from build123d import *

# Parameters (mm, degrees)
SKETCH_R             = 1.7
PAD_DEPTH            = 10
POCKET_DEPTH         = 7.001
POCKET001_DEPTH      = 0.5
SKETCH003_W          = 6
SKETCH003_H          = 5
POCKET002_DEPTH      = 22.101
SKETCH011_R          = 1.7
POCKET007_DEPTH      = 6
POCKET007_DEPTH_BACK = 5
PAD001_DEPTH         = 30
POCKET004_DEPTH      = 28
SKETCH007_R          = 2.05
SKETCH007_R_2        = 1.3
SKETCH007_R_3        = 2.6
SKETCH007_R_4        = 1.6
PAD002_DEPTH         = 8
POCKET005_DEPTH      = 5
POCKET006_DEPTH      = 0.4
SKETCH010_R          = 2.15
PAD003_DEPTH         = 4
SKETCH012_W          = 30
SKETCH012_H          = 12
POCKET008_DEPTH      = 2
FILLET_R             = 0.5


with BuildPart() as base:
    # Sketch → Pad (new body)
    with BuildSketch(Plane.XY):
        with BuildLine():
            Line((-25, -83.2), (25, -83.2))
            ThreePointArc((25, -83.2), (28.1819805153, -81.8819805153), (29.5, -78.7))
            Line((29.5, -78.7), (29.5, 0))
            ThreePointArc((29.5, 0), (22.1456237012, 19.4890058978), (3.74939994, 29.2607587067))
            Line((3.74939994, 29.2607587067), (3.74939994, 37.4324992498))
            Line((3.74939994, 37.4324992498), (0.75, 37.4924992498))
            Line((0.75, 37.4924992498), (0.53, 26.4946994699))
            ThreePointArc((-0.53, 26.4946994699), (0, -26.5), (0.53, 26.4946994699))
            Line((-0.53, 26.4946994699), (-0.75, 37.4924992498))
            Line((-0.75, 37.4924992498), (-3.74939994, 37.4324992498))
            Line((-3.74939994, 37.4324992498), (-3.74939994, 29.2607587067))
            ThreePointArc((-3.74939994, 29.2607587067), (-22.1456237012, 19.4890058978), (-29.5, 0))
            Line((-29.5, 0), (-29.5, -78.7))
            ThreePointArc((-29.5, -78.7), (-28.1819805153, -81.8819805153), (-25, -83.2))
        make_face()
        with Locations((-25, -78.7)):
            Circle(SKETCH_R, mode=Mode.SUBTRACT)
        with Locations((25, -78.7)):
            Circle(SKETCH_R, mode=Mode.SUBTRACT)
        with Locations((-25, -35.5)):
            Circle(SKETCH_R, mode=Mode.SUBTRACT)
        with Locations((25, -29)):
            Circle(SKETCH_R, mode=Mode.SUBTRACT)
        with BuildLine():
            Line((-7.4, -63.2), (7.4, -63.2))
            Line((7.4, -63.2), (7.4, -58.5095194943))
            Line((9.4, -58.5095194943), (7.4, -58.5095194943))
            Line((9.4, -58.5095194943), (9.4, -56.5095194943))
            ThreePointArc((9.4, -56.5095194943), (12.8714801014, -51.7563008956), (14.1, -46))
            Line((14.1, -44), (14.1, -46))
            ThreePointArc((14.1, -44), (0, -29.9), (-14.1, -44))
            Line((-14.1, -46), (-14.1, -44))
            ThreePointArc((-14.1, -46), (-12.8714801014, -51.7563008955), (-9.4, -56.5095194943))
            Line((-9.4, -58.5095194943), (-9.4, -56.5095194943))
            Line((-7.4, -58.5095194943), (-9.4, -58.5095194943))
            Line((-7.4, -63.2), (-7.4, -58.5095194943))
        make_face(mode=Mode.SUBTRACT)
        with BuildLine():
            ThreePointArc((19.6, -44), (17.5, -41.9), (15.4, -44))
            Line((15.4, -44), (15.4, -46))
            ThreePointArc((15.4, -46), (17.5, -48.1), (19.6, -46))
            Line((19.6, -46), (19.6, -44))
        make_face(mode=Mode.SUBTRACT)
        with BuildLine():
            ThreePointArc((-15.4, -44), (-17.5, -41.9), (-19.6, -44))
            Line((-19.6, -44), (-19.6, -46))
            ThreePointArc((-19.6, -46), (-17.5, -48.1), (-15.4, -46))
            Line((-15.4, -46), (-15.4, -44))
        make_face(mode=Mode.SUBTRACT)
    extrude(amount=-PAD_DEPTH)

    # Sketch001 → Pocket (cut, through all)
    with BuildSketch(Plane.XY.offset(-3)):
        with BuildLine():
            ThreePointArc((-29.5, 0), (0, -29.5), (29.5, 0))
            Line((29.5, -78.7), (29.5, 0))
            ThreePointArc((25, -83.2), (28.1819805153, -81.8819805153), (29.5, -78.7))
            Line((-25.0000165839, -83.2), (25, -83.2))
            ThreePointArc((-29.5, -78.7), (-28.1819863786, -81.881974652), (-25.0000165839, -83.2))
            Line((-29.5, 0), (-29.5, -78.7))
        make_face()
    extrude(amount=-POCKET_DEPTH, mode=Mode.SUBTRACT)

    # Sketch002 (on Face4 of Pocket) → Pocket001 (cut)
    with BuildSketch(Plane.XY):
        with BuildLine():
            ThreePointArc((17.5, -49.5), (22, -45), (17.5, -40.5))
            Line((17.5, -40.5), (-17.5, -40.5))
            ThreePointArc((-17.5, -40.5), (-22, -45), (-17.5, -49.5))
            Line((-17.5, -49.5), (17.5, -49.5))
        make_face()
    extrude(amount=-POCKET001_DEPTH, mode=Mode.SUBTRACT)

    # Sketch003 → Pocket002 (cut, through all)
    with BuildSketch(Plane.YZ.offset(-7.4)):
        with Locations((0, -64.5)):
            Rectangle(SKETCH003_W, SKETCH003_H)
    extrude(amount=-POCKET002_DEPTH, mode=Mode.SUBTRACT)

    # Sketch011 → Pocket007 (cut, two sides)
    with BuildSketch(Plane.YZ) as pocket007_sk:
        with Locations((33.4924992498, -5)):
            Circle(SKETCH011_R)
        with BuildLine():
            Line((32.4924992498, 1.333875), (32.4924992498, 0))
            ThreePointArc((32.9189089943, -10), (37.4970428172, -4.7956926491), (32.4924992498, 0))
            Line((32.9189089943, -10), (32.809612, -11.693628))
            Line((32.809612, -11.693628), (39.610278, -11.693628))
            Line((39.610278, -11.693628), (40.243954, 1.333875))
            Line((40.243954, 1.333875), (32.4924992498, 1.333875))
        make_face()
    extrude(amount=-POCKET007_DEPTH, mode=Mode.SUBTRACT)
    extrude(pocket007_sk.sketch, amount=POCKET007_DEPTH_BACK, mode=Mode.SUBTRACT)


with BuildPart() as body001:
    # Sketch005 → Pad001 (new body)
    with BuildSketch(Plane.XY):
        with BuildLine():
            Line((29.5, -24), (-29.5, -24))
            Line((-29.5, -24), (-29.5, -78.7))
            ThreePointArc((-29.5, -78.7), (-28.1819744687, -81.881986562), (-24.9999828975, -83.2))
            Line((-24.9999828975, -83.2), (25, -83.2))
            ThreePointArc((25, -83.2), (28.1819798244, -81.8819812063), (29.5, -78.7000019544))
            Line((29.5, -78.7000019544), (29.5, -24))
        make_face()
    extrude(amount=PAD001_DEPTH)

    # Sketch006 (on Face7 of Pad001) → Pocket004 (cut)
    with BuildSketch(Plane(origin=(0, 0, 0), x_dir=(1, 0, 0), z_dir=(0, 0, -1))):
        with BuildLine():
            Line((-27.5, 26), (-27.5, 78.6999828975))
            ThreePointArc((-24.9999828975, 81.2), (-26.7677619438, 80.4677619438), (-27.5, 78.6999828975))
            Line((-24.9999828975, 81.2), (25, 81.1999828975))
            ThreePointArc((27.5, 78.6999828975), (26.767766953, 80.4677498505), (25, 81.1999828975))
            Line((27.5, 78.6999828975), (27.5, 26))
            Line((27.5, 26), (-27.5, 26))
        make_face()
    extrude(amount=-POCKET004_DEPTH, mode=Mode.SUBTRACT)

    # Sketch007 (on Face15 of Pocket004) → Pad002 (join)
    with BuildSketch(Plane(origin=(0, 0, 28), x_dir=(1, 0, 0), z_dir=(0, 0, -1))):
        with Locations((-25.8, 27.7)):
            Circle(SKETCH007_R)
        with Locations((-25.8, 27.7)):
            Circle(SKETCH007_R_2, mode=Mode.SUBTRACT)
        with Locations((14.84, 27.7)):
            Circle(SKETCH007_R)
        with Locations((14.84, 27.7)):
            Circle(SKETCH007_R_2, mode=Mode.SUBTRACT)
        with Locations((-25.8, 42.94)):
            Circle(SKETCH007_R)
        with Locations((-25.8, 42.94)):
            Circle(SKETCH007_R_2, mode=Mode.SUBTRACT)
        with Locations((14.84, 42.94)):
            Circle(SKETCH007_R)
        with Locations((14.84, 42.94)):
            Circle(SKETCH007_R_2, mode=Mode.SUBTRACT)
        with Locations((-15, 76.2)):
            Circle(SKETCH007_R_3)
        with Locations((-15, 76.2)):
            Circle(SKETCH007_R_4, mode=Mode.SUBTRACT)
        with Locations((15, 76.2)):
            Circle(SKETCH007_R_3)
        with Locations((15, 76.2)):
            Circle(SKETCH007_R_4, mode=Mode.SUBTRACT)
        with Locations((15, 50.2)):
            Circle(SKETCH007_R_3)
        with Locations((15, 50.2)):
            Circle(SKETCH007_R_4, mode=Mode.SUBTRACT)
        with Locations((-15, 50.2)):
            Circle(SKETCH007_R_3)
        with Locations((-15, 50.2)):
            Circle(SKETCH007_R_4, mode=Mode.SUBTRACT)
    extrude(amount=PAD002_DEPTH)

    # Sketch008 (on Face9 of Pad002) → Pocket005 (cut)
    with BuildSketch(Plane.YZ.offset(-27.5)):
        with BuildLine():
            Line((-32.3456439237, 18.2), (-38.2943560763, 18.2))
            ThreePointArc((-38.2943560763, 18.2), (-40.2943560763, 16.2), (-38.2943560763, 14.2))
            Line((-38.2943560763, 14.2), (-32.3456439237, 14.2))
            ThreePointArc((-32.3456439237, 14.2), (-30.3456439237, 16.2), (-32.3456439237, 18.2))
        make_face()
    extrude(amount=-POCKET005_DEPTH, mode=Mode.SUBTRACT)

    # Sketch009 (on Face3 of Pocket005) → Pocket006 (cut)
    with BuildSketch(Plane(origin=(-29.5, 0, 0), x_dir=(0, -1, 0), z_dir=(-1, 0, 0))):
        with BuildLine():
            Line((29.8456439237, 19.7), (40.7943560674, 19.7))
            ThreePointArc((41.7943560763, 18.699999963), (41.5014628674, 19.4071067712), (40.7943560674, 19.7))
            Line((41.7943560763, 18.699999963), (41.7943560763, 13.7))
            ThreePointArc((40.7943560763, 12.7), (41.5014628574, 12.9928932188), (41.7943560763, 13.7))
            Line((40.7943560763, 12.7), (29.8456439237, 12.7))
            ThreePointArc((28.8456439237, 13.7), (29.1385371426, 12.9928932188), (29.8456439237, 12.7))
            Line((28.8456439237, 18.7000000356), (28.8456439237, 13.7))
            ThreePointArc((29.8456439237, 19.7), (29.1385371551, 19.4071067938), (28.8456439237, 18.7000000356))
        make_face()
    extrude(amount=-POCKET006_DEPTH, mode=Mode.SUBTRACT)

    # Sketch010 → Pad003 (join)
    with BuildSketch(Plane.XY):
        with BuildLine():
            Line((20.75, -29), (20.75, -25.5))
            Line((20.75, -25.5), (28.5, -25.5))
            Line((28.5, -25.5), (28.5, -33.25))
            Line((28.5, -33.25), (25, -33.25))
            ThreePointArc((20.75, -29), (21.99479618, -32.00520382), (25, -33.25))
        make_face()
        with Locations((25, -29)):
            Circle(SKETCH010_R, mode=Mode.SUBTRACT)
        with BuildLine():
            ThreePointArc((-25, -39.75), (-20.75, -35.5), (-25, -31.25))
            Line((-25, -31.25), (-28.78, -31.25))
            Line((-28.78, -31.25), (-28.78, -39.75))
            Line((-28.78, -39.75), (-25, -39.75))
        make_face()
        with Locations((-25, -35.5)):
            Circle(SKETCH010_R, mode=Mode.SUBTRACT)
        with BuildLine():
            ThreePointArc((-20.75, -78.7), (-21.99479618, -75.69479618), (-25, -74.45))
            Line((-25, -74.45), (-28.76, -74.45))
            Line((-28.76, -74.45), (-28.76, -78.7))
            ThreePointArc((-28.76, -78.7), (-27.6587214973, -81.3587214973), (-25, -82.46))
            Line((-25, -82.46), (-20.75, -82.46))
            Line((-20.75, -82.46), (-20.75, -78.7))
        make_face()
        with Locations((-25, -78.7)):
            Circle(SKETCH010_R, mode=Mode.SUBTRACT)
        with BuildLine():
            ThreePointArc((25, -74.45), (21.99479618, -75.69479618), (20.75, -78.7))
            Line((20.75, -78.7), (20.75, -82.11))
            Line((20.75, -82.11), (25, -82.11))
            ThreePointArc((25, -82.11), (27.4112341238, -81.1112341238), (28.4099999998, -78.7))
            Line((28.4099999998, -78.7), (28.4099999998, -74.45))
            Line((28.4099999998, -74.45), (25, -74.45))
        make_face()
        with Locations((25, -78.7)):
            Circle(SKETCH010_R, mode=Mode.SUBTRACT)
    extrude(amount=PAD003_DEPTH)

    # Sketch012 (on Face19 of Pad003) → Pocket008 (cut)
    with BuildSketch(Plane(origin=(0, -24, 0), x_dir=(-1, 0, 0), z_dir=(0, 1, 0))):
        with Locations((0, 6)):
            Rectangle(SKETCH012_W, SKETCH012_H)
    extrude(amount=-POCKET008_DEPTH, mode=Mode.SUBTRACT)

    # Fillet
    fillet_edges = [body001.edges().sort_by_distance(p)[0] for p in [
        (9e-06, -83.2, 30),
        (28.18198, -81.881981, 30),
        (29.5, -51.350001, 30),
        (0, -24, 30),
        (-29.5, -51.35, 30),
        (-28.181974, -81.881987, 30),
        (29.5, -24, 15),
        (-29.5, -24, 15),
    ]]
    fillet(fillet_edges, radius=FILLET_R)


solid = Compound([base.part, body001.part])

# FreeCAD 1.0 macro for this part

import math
import FreeCAD as App
import Part
import Sketcher

V = App.Vector
Q = App.Units.Quantity


def edges_at(feature, points):
    """Names of the edges that pass closest to the given points."""
    edges = feature.Shape.Edges
    near = lambda p: min(range(len(edges)), key=lambda i: edges[i].distToShape(Part.Vertex(*p))[0])
    return sorted({f"Edge{near(p) + 1}" for p in points})


def add_polygon(sketch, points):
    """Adds a closed chain of lines whose ends are joined by coincident constraints."""
    first, n = sketch.GeometryCount, len(points)
    for a, b in zip(points, points[1:] + points[:1]):
        sketch.addGeometry(Part.LineSegment(App.Vector(*a, 0), App.Vector(*b, 0)), False)
    for i in range(n):
        sketch.addConstraint(Sketcher.Constraint("Coincident", first + i, 2, first + (i + 1) % n, 1))

doc = App.newDocument("Part")
body = doc.addObject("PartDesign::Body", "Body")

sketch1 = body.newObject("Sketcher::SketchObject", "Sketch")
sketch1.AttachmentSupport = (doc.getObject("XY_Plane"), [""])
sketch1.MapMode = "FlatFace"
sketch1.addGeometry(Part.LineSegment(V(-25, -83.2, 0), V(25, -83.2, 0)), False)
sketch1.addGeometry(Part.ArcOfCircle(Part.Circle(V(25, -78.7, 0), V(0, 0, 1), 4.5), math.radians(-90), math.radians(0)), False)
sketch1.addGeometry(Part.LineSegment(V(29.5, -78.7, 0), V(29.5, 0, 0)), False)
sketch1.addGeometry(Part.ArcOfCircle(Part.Circle(V(0, 0, 0), V(0, 0, 1), 29.5), math.radians(0), math.radians(83)), False)
sketch1.addGeometry(Part.LineSegment(V(3.7, 29.3, 0), V(3.7, 37.4, 0)), False)
sketch1.addGeometry(Part.LineSegment(V(3.7, 37.4, 0), V(0.8, 37.5, 0)), False)
sketch1.addGeometry(Part.LineSegment(V(0.8, 37.5, 0), V(0.5, 26.5, 0)), False)
sketch1.addGeometry(Part.ArcOfCircle(Part.Circle(V(0, 0, 0), V(0, 0, 1), 26.5), math.radians(91), math.radians(449)), False)
sketch1.addGeometry(Part.LineSegment(V(-0.5, 26.5, 0), V(-0.8, 37.5, 0)), False)
sketch1.addGeometry(Part.LineSegment(V(-0.8, 37.5, 0), V(-3.7, 37.4, 0)), False)
sketch1.addGeometry(Part.LineSegment(V(-3.7, 37.4, 0), V(-3.7, 29.3, 0)), False)
sketch1.addGeometry(Part.ArcOfCircle(Part.Circle(V(0, 0, 0), V(0, 0, 1), 29.5), math.radians(97), math.radians(180)), False)
sketch1.addGeometry(Part.LineSegment(V(-29.5, 0, 0), V(-29.5, -78.7, 0)), False)
sketch1.addGeometry(Part.ArcOfCircle(Part.Circle(V(-25, -78.7, 0), V(0, 0, 1), 4.5), math.radians(180), math.radians(270)), False)
sketch1.addGeometry(Part.Circle(V(-25, -78.7, 0), V(0, 0, 1), 1.7), False)
sketch1.addGeometry(Part.Circle(V(25, -78.7, 0), V(0, 0, 1), 1.7), False)
sketch1.addGeometry(Part.ArcOfCircle(Part.Circle(V(-17.5, -44, 0), V(0, 0, 1), 2.1), math.radians(0), math.radians(180)), False)
sketch1.addGeometry(Part.LineSegment(V(-15.4, -44, 0), V(-15.4, -46, 0)), False)
sketch1.addGeometry(Part.ArcOfCircle(Part.Circle(V(-17.5, -46, 0), V(0, 0, 1), 2.1), math.radians(180), math.radians(360)), False)
sketch1.addGeometry(Part.LineSegment(V(-19.6, -46, 0), V(-19.6, -44, 0)), False)
sketch1.addGeometry(Part.Circle(V(-25, -35.5, 0), V(0, 0, 1), 1.7), False)
sketch1.addGeometry(Part.LineSegment(V(7.4, -63.2, 0), V(-7.4, -63.2, 0)), False)
sketch1.addGeometry(Part.LineSegment(V(-7.4, -63.2, 0), V(-7.4, -58.5, 0)), False)
sketch1.addGeometry(Part.LineSegment(V(-7.4, -58.5, 0), V(-9.4, -58.5, 0)), False)
sketch1.addGeometry(Part.LineSegment(V(-9.4, -58.5, 0), V(-9.4, -56.5, 0)), False)
sketch1.addGeometry(Part.ArcOfCircle(Part.Circle(V(0, -46, 0), V(0, 0, 1), 14.1), math.radians(180), math.radians(228)), False)
sketch1.addGeometry(Part.LineSegment(V(-14.1, -46, 0), V(-14.1, -44, 0)), False)
sketch1.addGeometry(Part.ArcOfCircle(Part.Circle(V(0, -44, 0), V(0, 0, 1), 14.1), math.radians(0), math.radians(180)), False)
sketch1.addGeometry(Part.LineSegment(V(14.1, -44, 0), V(14.1, -46, 0)), False)
sketch1.addGeometry(Part.ArcOfCircle(Part.Circle(V(0, -46, 0), V(0, 0, 1), 14.1), math.radians(-48), math.radians(0)), False)
sketch1.addGeometry(Part.LineSegment(V(9.4, -56.5, 0), V(9.4, -58.5, 0)), False)
sketch1.addGeometry(Part.LineSegment(V(9.4, -58.5, 0), V(7.4, -58.5, 0)), False)
sketch1.addGeometry(Part.LineSegment(V(7.4, -58.5, 0), V(7.4, -63.2, 0)), False)
sketch1.addGeometry(Part.ArcOfCircle(Part.Circle(V(17.5, -44, 0), V(0, 0, 1), 2.1), math.radians(0), math.radians(180)), False)
sketch1.addGeometry(Part.LineSegment(V(19.6, -44, 0), V(19.6, -46, 0)), False)
sketch1.addGeometry(Part.ArcOfCircle(Part.Circle(V(17.5, -46, 0), V(0, 0, 1), 2.1), math.radians(180), math.radians(360)), False)
sketch1.addGeometry(Part.LineSegment(V(15.4, -46, 0), V(15.4, -44, 0)), False)
sketch1.addGeometry(Part.Circle(V(25, -29, 0), V(0, 0, 1), 1.7), False)
sketch1.addConstraint(Sketcher.Constraint("Tangent", 0, 2, 1, 1))
sketch1.addConstraint(Sketcher.Constraint("Tangent", 1, 2, 2, 1))
sketch1.addConstraint(Sketcher.Constraint("Tangent", 2, 2, 3, 1))
sketch1.addConstraint(Sketcher.Constraint("Coincident", 3, 2, 4, 1))
sketch1.addConstraint(Sketcher.Constraint("Coincident", 4, 2, 5, 1))
sketch1.addConstraint(Sketcher.Constraint("Coincident", 5, 2, 6, 1))
sketch1.addConstraint(Sketcher.Constraint("Coincident", 6, 2, 7, 2))
sketch1.addConstraint(Sketcher.Constraint("Coincident", 7, 1, 8, 1))
sketch1.addConstraint(Sketcher.Constraint("Coincident", 8, 2, 9, 1))
sketch1.addConstraint(Sketcher.Constraint("Coincident", 9, 2, 10, 1))
sketch1.addConstraint(Sketcher.Constraint("Coincident", 10, 2, 11, 1))
sketch1.addConstraint(Sketcher.Constraint("Tangent", 11, 2, 12, 1))
sketch1.addConstraint(Sketcher.Constraint("Tangent", 12, 2, 13, 1))
sketch1.addConstraint(Sketcher.Constraint("Tangent", 13, 2, 0, 1))
sketch1.addConstraint(Sketcher.Constraint("Tangent", 16, 1, 17, 1))
sketch1.addConstraint(Sketcher.Constraint("Tangent", 17, 2, 18, 2))
sketch1.addConstraint(Sketcher.Constraint("Tangent", 18, 1, 19, 1))
sketch1.addConstraint(Sketcher.Constraint("Tangent", 19, 2, 16, 2))
sketch1.addConstraint(Sketcher.Constraint("Coincident", 21, 2, 22, 1))
sketch1.addConstraint(Sketcher.Constraint("Coincident", 22, 2, 23, 1))
sketch1.addConstraint(Sketcher.Constraint("Coincident", 23, 2, 24, 1))
sketch1.addConstraint(Sketcher.Constraint("Coincident", 24, 2, 25, 2))
sketch1.addConstraint(Sketcher.Constraint("Tangent", 25, 1, 26, 1))
sketch1.addConstraint(Sketcher.Constraint("Tangent", 26, 2, 27, 2))
sketch1.addConstraint(Sketcher.Constraint("Tangent", 27, 1, 28, 1))
sketch1.addConstraint(Sketcher.Constraint("Tangent", 28, 2, 29, 2))
sketch1.addConstraint(Sketcher.Constraint("Coincident", 29, 1, 30, 1))
sketch1.addConstraint(Sketcher.Constraint("Coincident", 30, 2, 31, 1))
sketch1.addConstraint(Sketcher.Constraint("Coincident", 31, 2, 32, 1))
sketch1.addConstraint(Sketcher.Constraint("Coincident", 32, 2, 21, 1))
sketch1.addConstraint(Sketcher.Constraint("Tangent", 33, 1, 34, 1))
sketch1.addConstraint(Sketcher.Constraint("Tangent", 34, 2, 35, 2))
sketch1.addConstraint(Sketcher.Constraint("Tangent", 35, 1, 36, 1))
sketch1.addConstraint(Sketcher.Constraint("Tangent", 36, 2, 33, 2))
sketch1.addConstraint(Sketcher.Constraint("Horizontal", 0))
sketch1.addConstraint(Sketcher.Constraint("Vertical", 2))
sketch1.addConstraint(Sketcher.Constraint("Vertical", 4))
sketch1.addConstraint(Sketcher.Constraint("Vertical", 10))
sketch1.addConstraint(Sketcher.Constraint("Vertical", 12))
sketch1.addConstraint(Sketcher.Constraint("Vertical", 17))
sketch1.addConstraint(Sketcher.Constraint("Vertical", 19))
sketch1.addConstraint(Sketcher.Constraint("Horizontal", 21))
sketch1.addConstraint(Sketcher.Constraint("Vertical", 22))
sketch1.addConstraint(Sketcher.Constraint("Horizontal", 23))
sketch1.addConstraint(Sketcher.Constraint("Vertical", 24))
sketch1.addConstraint(Sketcher.Constraint("Vertical", 26))
sketch1.addConstraint(Sketcher.Constraint("Vertical", 28))
sketch1.addConstraint(Sketcher.Constraint("Vertical", 30))
sketch1.addConstraint(Sketcher.Constraint("Horizontal", 31))
sketch1.addConstraint(Sketcher.Constraint("Vertical", 32))
sketch1.addConstraint(Sketcher.Constraint("Vertical", 34))
sketch1.addConstraint(Sketcher.Constraint("Vertical", 36))
sketch1.addConstraint(Sketcher.Constraint("Coincident", 3, 3, -1, 1))
sketch1.addConstraint(Sketcher.Constraint("Coincident", 7, 3, -1, 1))
sketch1.addConstraint(Sketcher.Constraint("Coincident", 11, 3, -1, 1))
sketch1.addConstraint(Sketcher.Constraint("Coincident", 14, 3, 13, 3))
sketch1.addConstraint(Sketcher.Constraint("Coincident", 15, 3, 1, 3))
sketch1.addConstraint(Sketcher.Constraint("Coincident", 29, 3, 25, 3))
sketch1.addConstraint(Sketcher.Constraint("Equal", 3, 11))
sketch1.addConstraint(Sketcher.Constraint("Equal", 1, 13))
sketch1.addConstraint(Sketcher.Constraint("Equal", 14, 15))
sketch1.addConstraint(Sketcher.Constraint("Equal", 15, 20))
sketch1.addConstraint(Sketcher.Constraint("Equal", 25, 27))
sketch1.addConstraint(Sketcher.Constraint("Equal", 18, 33))
sketch1.addConstraint(Sketcher.Constraint("Equal", 20, 37))
sketch1.addConstraint(Sketcher.Constraint("Symmetric", 16, 3, 33, 3, -2))
sketch1.addConstraint(Sketcher.Constraint("Symmetric", 5, 2, 8, 2, -2))
sketch1.addConstraint(Sketcher.Constraint("Symmetric", 4, 2, 9, 2, -2))
sketch1.addConstraint(Sketcher.Constraint("Symmetric", 24, 2, 29, 1, -2))
sketch1.addConstraint(Sketcher.Constraint("Symmetric", 22, 2, 31, 2, -2))
sketch1.addConstraint(Sketcher.Constraint("Perpendicular", 5, 6))
sketch1.addConstraint(Sketcher.Constraint("Perpendicular", 8, 9))
sketch1.addConstraint(Sketcher.Constraint("Horizontal", 18, 3, 25, 3))
sketch1.addConstraint(Sketcher.Constraint("Horizontal", 16, 3, 27, 3))
sketch1.addConstraint(Sketcher.Constraint("Horizontal", 29, 3, 35, 3))
sketch1.addConstraint(Sketcher.Constraint("Vertical", 14, 3, 20, 3))
sketch1.addConstraint(Sketcher.Constraint("Vertical", 15, 3, 37, 3))
sketch1.addConstraint(Sketcher.Constraint("Equal", 31, 17))
sketch1.addConstraint(Sketcher.Constraint("Equal", 19, 24))
sketch1.addConstraint(Sketcher.Constraint("Diameter", 14, Q("3.4 mm")))
sketch1.addConstraint(Sketcher.Constraint("Radius", 1, Q("4.5 mm")))
sketch1.addConstraint(Sketcher.Constraint("Radius", 3, Q("29.5 mm")))
sketch1.addConstraint(Sketcher.Constraint("Radius", 7, Q("26.5 mm")))
sketch1.addConstraint(Sketcher.Constraint("Radius", 16, Q("2.1 mm")))
sketch1.addConstraint(Sketcher.Constraint("Radius", 25, Q("14.1 mm")))
sketch1.addConstraint(Sketcher.Constraint("DistanceX", 23, 2, 23, 1, Q("2 mm")))
sketch1.addConstraint(Sketcher.Constraint("Distance", 5, Q("3 mm")))
sketch1.addConstraint(Sketcher.Constraint("Distance", 6, Q("11 mm")))
sketch1.addConstraint(Sketcher.Constraint("DistanceX", 21, 2, 21, 1, Q("14.8 mm")))
sketch1.addConstraint(Sketcher.Constraint("DistanceY", 2, 1, 2, 2, Q("78.7 mm")))
sketch1.addConstraint(Sketcher.Constraint("DistanceY", 16, 3, -1, 1, Q("44 mm")))
sketch1.addConstraint(Sketcher.Constraint("DistanceY", 37, 3, -1, 1, Q("29 mm")))
sketch1.addConstraint(Sketcher.Constraint("DistanceX", 16, 3, 33, 3, Q("35 mm")))
sketch1.addConstraint(Sketcher.Constraint("DistanceY", 20, 3, -1, 1, Q("35.5 mm")))
sketch1.addConstraint(Sketcher.Constraint("DistanceY", 21, 2, -1, 1, Q("63.2 mm")))
sketch1.addConstraint(Sketcher.Constraint("DistanceX", 8, 2, 5, 2, Q("1.5 mm")))
sketch1.addConstraint(Sketcher.Constraint("DistanceX", -1, 1, 6, 2, Q("0.53 mm")))
pad1 = body.newObject("PartDesign::Pad", "Pad")
pad1.Profile = sketch1
pad1.Length = 10
pad1.Reversed = True

sketch2 = body.newObject("Sketcher::SketchObject", "Sketch001")
sketch2.AttachmentSupport = (doc.getObject("XY_Plane"), [""])
sketch2.MapMode = "FlatFace"
sketch2.AttachmentOffset = App.Placement(V(0, 0, -3), App.Rotation())
sketch2.addGeometry(Part.ArcOfCircle(Part.Circle(V(0, 0, 0), V(0, 0, 1), 29.5), math.radians(180), math.radians(360)), False)
sketch2.addGeometry(Part.LineSegment(V(-29.5, 0, 0), V(-29.5, -78.7, 0)), False)
sketch2.addGeometry(Part.ArcOfCircle(Part.Circle(V(-25, -78.7, 0), V(0, 0, 1), 4.5), math.radians(180), math.radians(270)), False)
sketch2.addGeometry(Part.LineSegment(V(-25, -83.2, 0), V(25, -83.2, 0)), False)
sketch2.addGeometry(Part.ArcOfCircle(Part.Circle(V(25, -78.7, 0), V(0, 0, 1), 4.5), math.radians(-90), math.radians(0)), False)
sketch2.addGeometry(Part.LineSegment(V(29.5, -78.7, 0), V(29.5, 0, 0)), False)
sketch2.addConstraint(Sketcher.Constraint("Tangent", 0, 1, 1, 1))
sketch2.addConstraint(Sketcher.Constraint("Tangent", 1, 2, 2, 1))
sketch2.addConstraint(Sketcher.Constraint("Coincident", 2, 2, 3, 1))
sketch2.addConstraint(Sketcher.Constraint("Tangent", 3, 2, 4, 1))
sketch2.addConstraint(Sketcher.Constraint("Tangent", 4, 2, 5, 1))
sketch2.addConstraint(Sketcher.Constraint("Tangent", 5, 2, 0, 2))
sketch2.addConstraint(Sketcher.Constraint("Vertical", 1))
sketch2.addConstraint(Sketcher.Constraint("Horizontal", 3))
sketch2.addConstraint(Sketcher.Constraint("Vertical", 5))
sketch2.addConstraint(Sketcher.Constraint("Coincident", 0, 3, -1, 1))
sketch2.addConstraint(Sketcher.Constraint("Equal", 2, 4))
sketch2.addConstraint(Sketcher.Constraint("Radius", 0, Q("29.5 mm")))
sketch2.addConstraint(Sketcher.Constraint("Radius", 2, Q("4.5 mm")))
sketch2.addConstraint(Sketcher.Constraint("DistanceY", 1, 2, 1, 1, Q("78.7 mm")))
sketch2.addConstraint(Sketcher.Constraint("DistanceX", 3, 1, 3, 2, Q("50.000017 mm")))
pocket1 = body.newObject("PartDesign::Pocket", "Pocket")
pocket1.Profile = sketch2
pocket1.Type = "ThroughAll"

sketch3 = body.newObject("Sketcher::SketchObject", "Sketch002")
sketch3.AttachmentSupport = (doc.getObject("XY_Plane"), [""])
sketch3.MapMode = "FlatFace"
sketch3.addGeometry(Part.ArcOfCircle(Part.Circle(V(17.5, -45, 0), V(0, 0, 1), 4.5), math.radians(-90), math.radians(90)), False)
sketch3.addGeometry(Part.LineSegment(V(17.5, -40.5, 0), V(-17.5, -40.5, 0)), False)
sketch3.addGeometry(Part.ArcOfCircle(Part.Circle(V(-17.5, -45, 0), V(0, 0, 1), 4.5), math.radians(90), math.radians(270)), False)
sketch3.addGeometry(Part.LineSegment(V(-17.5, -49.5, 0), V(17.5, -49.5, 0)), False)
sketch3.addConstraint(Sketcher.Constraint("Tangent", 0, 2, 1, 1))
sketch3.addConstraint(Sketcher.Constraint("Tangent", 1, 2, 2, 1))
sketch3.addConstraint(Sketcher.Constraint("Tangent", 2, 2, 3, 1))
sketch3.addConstraint(Sketcher.Constraint("Tangent", 3, 2, 0, 1))
sketch3.addConstraint(Sketcher.Constraint("Horizontal", 1))
sketch3.addConstraint(Sketcher.Constraint("Horizontal", 3))
sketch3.addConstraint(Sketcher.Constraint("Radius", 0, Q("4.5 mm")))
sketch3.addConstraint(Sketcher.Constraint("DistanceX", 1, 2, 1, 1, Q("35 mm")))
sketch3.addConstraint(Sketcher.Constraint("DistanceY", 0, 3, -1, 1, Q("45 mm")))
sketch3.addConstraint(Sketcher.Constraint("DistanceX", -1, 1, 0, 3, Q("17.5 mm")))
pocket2 = body.newObject("PartDesign::Pocket", "Pocket001")
pocket2.Profile = sketch3
pocket2.Length = 0.5

sketch4 = body.newObject("Sketcher::SketchObject", "Sketch003")
sketch4.AttachmentSupport = (doc.getObject("YZ_Plane"), [""])
sketch4.MapMode = "FlatFace"
sketch4.AttachmentOffset = App.Placement(V(0, 0, -7.4), App.Rotation())
add_polygon(sketch4, [(-3, -62), (-3, -67), (3, -67), (3, -62)])
sketch4.addConstraint(Sketcher.Constraint("Vertical", 0))
sketch4.addConstraint(Sketcher.Constraint("Horizontal", 1))
sketch4.addConstraint(Sketcher.Constraint("Vertical", 2))
sketch4.addConstraint(Sketcher.Constraint("Horizontal", 3))
sketch4.addConstraint(Sketcher.Constraint("DistanceX", 1, 1, 1, 2, Q("6 mm")))
sketch4.addConstraint(Sketcher.Constraint("DistanceY", 0, 2, 0, 1, Q("5 mm")))
sketch4.addConstraint(Sketcher.Constraint("DistanceX", 0, 2, -1, 1, Q("3 mm")))
sketch4.addConstraint(Sketcher.Constraint("DistanceY", 0, 2, -1, 1, Q("67 mm")))
pocket3 = body.newObject("PartDesign::Pocket", "Pocket002")
pocket3.Profile = sketch4
pocket3.Type = "ThroughAll"

sketch5 = body.newObject("Sketcher::SketchObject", "Sketch004")
sketch5.AttachmentSupport = (doc.getObject("YZ_Plane"), [""])
sketch5.MapMode = "FlatFace"
sketch5.addGeometry(Part.Circle(V(33.5, -5, 0), V(0, 0, 1), 1.7), False)
sketch5.addGeometry(Part.LineSegment(V(32.5, 1.3, 0), V(32.5, 0, 0)), False)
sketch5.addGeometry(Part.ArcOfCircle(Part.Circle(V(32.5, -5, 0), V(0, 0, 1), 5), math.radians(-85), math.radians(90)), False)
sketch5.addGeometry(Part.LineSegment(V(32.9, -10, 0), V(32.8, -11.7, 0)), False)
sketch5.addGeometry(Part.LineSegment(V(32.8, -11.7, 0), V(39.6, -11.7, 0)), False)
sketch5.addGeometry(Part.LineSegment(V(39.6, -11.7, 0), V(40.2, 1.3, 0)), False)
sketch5.addGeometry(Part.LineSegment(V(40.2, 1.3, 0), V(32.5, 1.3, 0)), False)
sketch5.addConstraint(Sketcher.Constraint("Coincident", 1, 2, 2, 2))
sketch5.addConstraint(Sketcher.Constraint("Coincident", 2, 1, 3, 1))
sketch5.addConstraint(Sketcher.Constraint("Coincident", 3, 2, 4, 1))
sketch5.addConstraint(Sketcher.Constraint("Coincident", 4, 2, 5, 1))
sketch5.addConstraint(Sketcher.Constraint("Coincident", 5, 2, 6, 1))
sketch5.addConstraint(Sketcher.Constraint("Coincident", 6, 2, 1, 1))
sketch5.addConstraint(Sketcher.Constraint("Vertical", 1))
sketch5.addConstraint(Sketcher.Constraint("Horizontal", 4))
sketch5.addConstraint(Sketcher.Constraint("Horizontal", 6))
sketch5.addConstraint(Sketcher.Constraint("PointOnObject", 1, 2, -1))
sketch5.addConstraint(Sketcher.Constraint("Vertical", 2, 3, 1, 2))
sketch5.addConstraint(Sketcher.Constraint("Diameter", 0, Q("3.4 mm")))
sketch5.addConstraint(Sketcher.Constraint("DistanceY", 0, 3, -1, 1, Q("5 mm")))
sketch5.addConstraint(Sketcher.Constraint("DistanceY", 2, 1, -1, 1, Q("10 mm")))
sketch5.addConstraint(Sketcher.Constraint("DistanceX", 2, 3, 0, 3, Q("1 mm")))
sketch5.addConstraint(Sketcher.Constraint("Radius", 2, Q("5.009091 mm")))
sketch5.addConstraint(Sketcher.Constraint("DistanceX", -1, 1, 0, 3, Q("33.492499 mm")))
sketch5.addConstraint(Sketcher.Constraint("Distance", 3, Q("1.697151 mm")))
sketch5.addConstraint(Sketcher.Constraint("DistanceX", 4, 1, 4, 2, Q("6.800666 mm")))
sketch5.addConstraint(Sketcher.Constraint("DistanceX", 6, 2, 6, 1, Q("7.751455 mm")))
sketch5.addConstraint(Sketcher.Constraint("DistanceY", 1, 2, 1, 1, Q("1.333875 mm")))
sketch5.addConstraint(Sketcher.Constraint("DistanceY", 3, 2, 0, 3, Q("6.693628 mm")))
pocket4 = body.newObject("PartDesign::Pocket", "Pocket003")
pocket4.Profile = sketch5
pocket4.Type = "ThroughAll"
pocket4.Midplane = True
body2 = doc.addObject("PartDesign::Body", "Body001")

sketch6 = body2.newObject("Sketcher::SketchObject", "Sketch005")
sketch6.AttachmentSupport = (doc.getObject("XY_Plane001"), [""])
sketch6.MapMode = "FlatFace"
sketch6.addGeometry(Part.LineSegment(V(29.5, -24, 0), V(-29.5, -24, 0)), False)
sketch6.addGeometry(Part.LineSegment(V(-29.5, -24, 0), V(-29.5, -78.7, 0)), False)
sketch6.addGeometry(Part.ArcOfCircle(Part.Circle(V(-25, -78.7, 0), V(0, 0, 1), 4.5), math.radians(180), math.radians(270)), False)
sketch6.addGeometry(Part.LineSegment(V(-25, -83.2, 0), V(25, -83.2, 0)), False)
sketch6.addGeometry(Part.ArcOfCircle(Part.Circle(V(25, -78.7, 0), V(0, 0, 1), 4.5), math.radians(-90), math.radians(0)), False)
sketch6.addGeometry(Part.LineSegment(V(29.5, -78.7, 0), V(29.5, -24, 0)), False)
sketch6.addConstraint(Sketcher.Constraint("Coincident", 0, 2, 1, 1))
sketch6.addConstraint(Sketcher.Constraint("Tangent", 1, 2, 2, 1))
sketch6.addConstraint(Sketcher.Constraint("Coincident", 2, 2, 3, 1))
sketch6.addConstraint(Sketcher.Constraint("Tangent", 3, 2, 4, 1))
sketch6.addConstraint(Sketcher.Constraint("Tangent", 4, 2, 5, 1))
sketch6.addConstraint(Sketcher.Constraint("Coincident", 5, 2, 0, 1))
sketch6.addConstraint(Sketcher.Constraint("Horizontal", 0))
sketch6.addConstraint(Sketcher.Constraint("Vertical", 1))
sketch6.addConstraint(Sketcher.Constraint("Horizontal", 3))
sketch6.addConstraint(Sketcher.Constraint("Vertical", 5))
sketch6.addConstraint(Sketcher.Constraint("Equal", 2, 4))
sketch6.addConstraint(Sketcher.Constraint("Radius", 2, Q("4.5 mm")))
sketch6.addConstraint(Sketcher.Constraint("DistanceX", 0, 2, 0, 1, Q("59 mm")))
sketch6.addConstraint(Sketcher.Constraint("DistanceY", 1, 2, 1, 1, Q("54.7 mm")))
sketch6.addConstraint(Sketcher.Constraint("DistanceX", 2, 3, -1, 1, Q("25 mm")))
sketch6.addConstraint(Sketcher.Constraint("DistanceY", 0, 2, -1, 1, Q("24 mm")))
sketch6.addConstraint(Sketcher.Constraint("DistanceX", 3, 1, 3, 2, Q("49.999983 mm")))
pad2 = body2.newObject("PartDesign::Pad", "Pad001")
pad2.Profile = sketch6
pad2.Length = 30

sketch7 = body2.newObject("Sketcher::SketchObject", "Sketch006")
sketch7.AttachmentSupport = (doc.getObject("XY_Plane001"), [""])
sketch7.MapMode = "FlatFace"
sketch7.addGeometry(Part.LineSegment(V(-27.5, -78.699983, 0), V(-27.5, -26, 0)), False)
sketch7.addGeometry(Part.LineSegment(V(-27.5, -26, 0), V(27.5, -26, 0)), False)
sketch7.addGeometry(Part.LineSegment(V(27.5, -26, 0), V(27.5, -78.699983, 0)), False)
sketch7.addGeometry(Part.ArcOfCircle(Part.Circle(V(25, -78.699983, 0), V(0, 0, 1), 2.5), math.radians(-90), math.radians(0)), False)
sketch7.addGeometry(Part.LineSegment(V(25, -81.199983, 0), V(-24.999983, -81.2, 0)), False)
sketch7.addGeometry(Part.ArcOfCircle(Part.Circle(V(-24.999983, -78.699983, 0), V(0, 0, 1), 2.500017), math.radians(180), math.radians(270)), False)
sketch7.addConstraint(Sketcher.Constraint("Coincident", 0, 2, 1, 1))
sketch7.addConstraint(Sketcher.Constraint("Coincident", 1, 2, 2, 1))
sketch7.addConstraint(Sketcher.Constraint("Coincident", 2, 2, 3, 2))
sketch7.addConstraint(Sketcher.Constraint("Coincident", 3, 1, 4, 1))
sketch7.addConstraint(Sketcher.Constraint("Coincident", 4, 2, 5, 2))
sketch7.addConstraint(Sketcher.Constraint("Coincident", 5, 1, 0, 1))
sketch7.addConstraint(Sketcher.Constraint("Vertical", 0))
sketch7.addConstraint(Sketcher.Constraint("Horizontal", 1))
sketch7.addConstraint(Sketcher.Constraint("Vertical", 2))
sketch7.addConstraint(Sketcher.Constraint("Radius", 3, Q("2.5 mm")))
sketch7.addConstraint(Sketcher.Constraint("DistanceX", 1, 1, 1, 2, Q("55 mm")))
sketch7.addConstraint(Sketcher.Constraint("DistanceX", -1, 1, 3, 3, Q("25 mm")))
sketch7.addConstraint(Sketcher.Constraint("DistanceY", 0, 2, -1, 1, Q("26 mm")))
sketch7.addConstraint(Sketcher.Constraint("DistanceX", -1, 1, 3, 1, Q("25 mm")))
sketch7.addConstraint(Sketcher.Constraint("DistanceY", 4, 2, -1, 1, Q("81.2 mm")))
sketch7.addConstraint(Sketcher.Constraint("DistanceY", 3, 1, 2, 2, Q("2.5 mm")))
sketch7.addConstraint(Sketcher.Constraint("DistanceY", 3, 1, 5, 3, Q("2.5 mm")))
sketch7.addConstraint(Sketcher.Constraint("DistanceY", 3, 1, 5, 1, Q("2.5 mm")))
sketch7.addConstraint(Sketcher.Constraint("Radius", 5, Q("2.500017 mm")))
sketch7.addConstraint(Sketcher.Constraint("Distance", 4, Q("49.999983 mm")))
pocket5 = body2.newObject("PartDesign::Pocket", "Pocket004")
pocket5.Profile = sketch7
pocket5.Length = 28
pocket5.Reversed = True

sketch8 = body2.newObject("Sketcher::SketchObject", "Sketch007")
sketch8.AttachmentSupport = (doc.getObject("XY_Plane001"), [""])
sketch8.MapMode = "FlatFace"
sketch8.AttachmentOffset = App.Placement(V(0, 0, 28), App.Rotation())
sketch8.addGeometry(Part.Circle(V(-25.8, -27.7, 0), V(0, 0, 1), 2), False)
sketch8.addGeometry(Part.Circle(V(-25.8, -27.7, 0), V(0, 0, 1), 1.3), False)
sketch8.addGeometry(Part.Circle(V(14.8, -27.7, 0), V(0, 0, 1), 2), False)
sketch8.addGeometry(Part.Circle(V(14.8, -27.7, 0), V(0, 0, 1), 1.3), False)
sketch8.addGeometry(Part.Circle(V(-25.8, -42.9, 0), V(0, 0, 1), 2), False)
sketch8.addGeometry(Part.Circle(V(-25.8, -42.9, 0), V(0, 0, 1), 1.3), False)
sketch8.addGeometry(Part.Circle(V(14.8, -42.9, 0), V(0, 0, 1), 2), False)
sketch8.addGeometry(Part.Circle(V(14.8, -42.9, 0), V(0, 0, 1), 1.3), False)
sketch8.addGeometry(Part.Circle(V(-15, -76.2, 0), V(0, 0, 1), 2.6), False)
sketch8.addGeometry(Part.Circle(V(-15, -76.2, 0), V(0, 0, 1), 1.6), False)
sketch8.addGeometry(Part.Circle(V(15, -76.2, 0), V(0, 0, 1), 2.6), False)
sketch8.addGeometry(Part.Circle(V(15, -76.2, 0), V(0, 0, 1), 1.6), False)
sketch8.addGeometry(Part.Circle(V(15, -50.2, 0), V(0, 0, 1), 2.6), False)
sketch8.addGeometry(Part.Circle(V(15, -50.2, 0), V(0, 0, 1), 1.6), False)
sketch8.addGeometry(Part.Circle(V(-15, -50.2, 0), V(0, 0, 1), 2.6), False)
sketch8.addGeometry(Part.Circle(V(-15, -50.2, 0), V(0, 0, 1), 1.6), False)
sketch8.addConstraint(Sketcher.Constraint("Coincident", 1, 3, 0, 3))
sketch8.addConstraint(Sketcher.Constraint("Coincident", 3, 3, 2, 3))
sketch8.addConstraint(Sketcher.Constraint("Coincident", 5, 3, 4, 3))
sketch8.addConstraint(Sketcher.Constraint("Coincident", 7, 3, 6, 3))
sketch8.addConstraint(Sketcher.Constraint("Coincident", 9, 3, 8, 3))
sketch8.addConstraint(Sketcher.Constraint("Coincident", 11, 3, 10, 3))
sketch8.addConstraint(Sketcher.Constraint("Coincident", 13, 3, 12, 3))
sketch8.addConstraint(Sketcher.Constraint("Coincident", 15, 3, 14, 3))
sketch8.addConstraint(Sketcher.Constraint("Equal", 0, 2))
sketch8.addConstraint(Sketcher.Constraint("Equal", 1, 3))
sketch8.addConstraint(Sketcher.Constraint("Equal", 2, 4))
sketch8.addConstraint(Sketcher.Constraint("Equal", 3, 5))
sketch8.addConstraint(Sketcher.Constraint("Equal", 4, 6))
sketch8.addConstraint(Sketcher.Constraint("Equal", 5, 7))
sketch8.addConstraint(Sketcher.Constraint("Equal", 8, 10))
sketch8.addConstraint(Sketcher.Constraint("Equal", 9, 11))
sketch8.addConstraint(Sketcher.Constraint("Equal", 10, 12))
sketch8.addConstraint(Sketcher.Constraint("Equal", 11, 13))
sketch8.addConstraint(Sketcher.Constraint("Equal", 12, 14))
sketch8.addConstraint(Sketcher.Constraint("Equal", 13, 15))
sketch8.addConstraint(Sketcher.Constraint("Symmetric", 8, 3, 10, 3, -2))
sketch8.addConstraint(Sketcher.Constraint("Symmetric", 12, 3, 14, 3, -2))
sketch8.addConstraint(Sketcher.Constraint("Horizontal", 1, 3, 2, 3))
sketch8.addConstraint(Sketcher.Constraint("Horizontal", 5, 3, 6, 3))
sketch8.addConstraint(Sketcher.Constraint("Vertical", 1, 3, 4, 3))
sketch8.addConstraint(Sketcher.Constraint("Vertical", 3, 3, 6, 3))
sketch8.addConstraint(Sketcher.Constraint("Vertical", 11, 3, 12, 3))
sketch8.addConstraint(Sketcher.Constraint("Diameter", 0, Q("4.1 mm")))
sketch8.addConstraint(Sketcher.Constraint("Diameter", 1, Q("2.6 mm")))
sketch8.addConstraint(Sketcher.Constraint("Diameter", 8, Q("5.2 mm")))
sketch8.addConstraint(Sketcher.Constraint("Diameter", 9, Q("3.2 mm")))
sketch8.addConstraint(Sketcher.Constraint("DistanceX", 8, 3, -1, 1, Q("15 mm")))
sketch8.addConstraint(Sketcher.Constraint("DistanceY", 10, 3, 12, 3, Q("26 mm")))
sketch8.addConstraint(Sketcher.Constraint("DistanceX", 0, 3, -1, 1, Q("25.8 mm")))
sketch8.addConstraint(Sketcher.Constraint("DistanceY", 0, 3, -1, 1, Q("27.7 mm")))
sketch8.addConstraint(Sketcher.Constraint("DistanceY", 8, 3, -1, 1, Q("76.2 mm")))
sketch8.addConstraint(Sketcher.Constraint("DistanceX", -1, 1, 2, 3, Q("14.84 mm")))
sketch8.addConstraint(Sketcher.Constraint("DistanceY", 4, 3, -1, 1, Q("42.94 mm")))
pad3 = body2.newObject("PartDesign::Pad", "Pad002")
pad3.Profile = sketch8
pad3.Length = 8
pad3.Reversed = True

sketch9 = body2.newObject("Sketcher::SketchObject", "Sketch008")
sketch9.AttachmentSupport = (doc.getObject("YZ_Plane001"), [""])
sketch9.MapMode = "FlatFace"
sketch9.AttachmentOffset = App.Placement(V(0, 0, -27.5), App.Rotation())
sketch9.addGeometry(Part.LineSegment(V(-32.3, 18.2, 0), V(-38.3, 18.2, 0)), False)
sketch9.addGeometry(Part.ArcOfCircle(Part.Circle(V(-38.3, 16.2, 0), V(0, 0, 1), 2), math.radians(90), math.radians(270)), False)
sketch9.addGeometry(Part.LineSegment(V(-38.3, 14.2, 0), V(-32.3, 14.2, 0)), False)
sketch9.addGeometry(Part.ArcOfCircle(Part.Circle(V(-32.3, 16.2, 0), V(0, 0, 1), 2), math.radians(-90), math.radians(90)), False)
sketch9.addConstraint(Sketcher.Constraint("Tangent", 0, 2, 1, 1))
sketch9.addConstraint(Sketcher.Constraint("Tangent", 1, 2, 2, 1))
sketch9.addConstraint(Sketcher.Constraint("Tangent", 2, 2, 3, 1))
sketch9.addConstraint(Sketcher.Constraint("Tangent", 3, 2, 0, 1))
sketch9.addConstraint(Sketcher.Constraint("Horizontal", 0))
sketch9.addConstraint(Sketcher.Constraint("Horizontal", 2))
sketch9.addConstraint(Sketcher.Constraint("Radius", 1, Q("2 mm")))
sketch9.addConstraint(Sketcher.Constraint("DistanceY", -1, 1, 1, 3, Q("16.2 mm")))
sketch9.addConstraint(Sketcher.Constraint("DistanceX", 0, 2, 0, 1, Q("5.948712 mm")))
sketch9.addConstraint(Sketcher.Constraint("DistanceX", 1, 3, -1, 1, Q("38.294356 mm")))
pocket6 = body2.newObject("PartDesign::Pocket", "Pocket005")
pocket6.Profile = sketch9
pocket6.Length = 5

sketch10 = body2.newObject("Sketcher::SketchObject", "Sketch009")
sketch10.AttachmentSupport = (doc.getObject("YZ_Plane001"), [""])
sketch10.MapMode = "FlatFace"
sketch10.AttachmentOffset = App.Placement(V(0, 0, -29.5), App.Rotation())
sketch10.addGeometry(Part.LineSegment(V(-40.8, 19.7, 0), V(-29.8, 19.7, 0)), False)
sketch10.addGeometry(Part.ArcOfCircle(Part.Circle(V(-29.8, 18.7, 0), V(0, 0, 1), 1), math.radians(0), math.radians(90)), False)
sketch10.addGeometry(Part.LineSegment(V(-28.8, 18.7, 0), V(-28.8, 13.7, 0)), False)
sketch10.addGeometry(Part.ArcOfCircle(Part.Circle(V(-29.8, 13.7, 0), V(0, 0, 1), 1), math.radians(-90), math.radians(0)), False)
sketch10.addGeometry(Part.LineSegment(V(-29.8, 12.7, 0), V(-40.8, 12.7, 0)), False)
sketch10.addGeometry(Part.ArcOfCircle(Part.Circle(V(-40.8, 13.7, 0), V(0, 0, 1), 1), math.radians(180), math.radians(270)), False)
sketch10.addGeometry(Part.LineSegment(V(-41.8, 13.7, 0), V(-41.8, 18.7, 0)), False)
sketch10.addGeometry(Part.ArcOfCircle(Part.Circle(V(-40.8, 18.7, 0), V(0, 0, 1), 1), math.radians(90), math.radians(180)), False)
sketch10.addConstraint(Sketcher.Constraint("Tangent", 0, 2, 1, 2))
sketch10.addConstraint(Sketcher.Constraint("Tangent", 1, 1, 2, 1))
sketch10.addConstraint(Sketcher.Constraint("Tangent", 2, 2, 3, 2))
sketch10.addConstraint(Sketcher.Constraint("Tangent", 3, 1, 4, 1))
sketch10.addConstraint(Sketcher.Constraint("Tangent", 4, 2, 5, 2))
sketch10.addConstraint(Sketcher.Constraint("Tangent", 5, 1, 6, 1))
sketch10.addConstraint(Sketcher.Constraint("Tangent", 6, 2, 7, 2))
sketch10.addConstraint(Sketcher.Constraint("Tangent", 7, 1, 0, 1))
sketch10.addConstraint(Sketcher.Constraint("Horizontal", 0))
sketch10.addConstraint(Sketcher.Constraint("Vertical", 2))
sketch10.addConstraint(Sketcher.Constraint("Horizontal", 4))
sketch10.addConstraint(Sketcher.Constraint("Vertical", 6))
sketch10.addConstraint(Sketcher.Constraint("Equal", 1, 3))
sketch10.addConstraint(Sketcher.Constraint("Equal", 3, 5))
sketch10.addConstraint(Sketcher.Constraint("Equal", 5, 7))
sketch10.addConstraint(Sketcher.Constraint("Radius", 1, Q("1 mm")))
sketch10.addConstraint(Sketcher.Constraint("DistanceY", 2, 2, 2, 1, Q("5 mm")))
sketch10.addConstraint(Sketcher.Constraint("DistanceY", -1, 1, 1, 3, Q("18.7 mm")))
sketch10.addConstraint(Sketcher.Constraint("DistanceX", 0, 1, 0, 2, Q("10.948712 mm")))
sketch10.addConstraint(Sketcher.Constraint("DistanceX", 1, 3, -1, 1, Q("29.845644 mm")))
pocket7 = body2.newObject("PartDesign::Pocket", "Pocket006")
pocket7.Profile = sketch10
pocket7.Length = 0.4
pocket7.Reversed = True

sketch11 = body2.newObject("Sketcher::SketchObject", "Sketch010")
sketch11.AttachmentSupport = (doc.getObject("XY_Plane001"), [""])
sketch11.MapMode = "FlatFace"
sketch11.addGeometry(Part.LineSegment(V(20.8, -25.5, 0), V(20.8, -29, 0)), False)
sketch11.addGeometry(Part.ArcOfCircle(Part.Circle(V(25, -29, 0), V(0, 0, 1), 4.2), math.radians(180), math.radians(270)), False)
sketch11.addGeometry(Part.LineSegment(V(25, -33.2, 0), V(28.5, -33.2, 0)), False)
sketch11.addGeometry(Part.LineSegment(V(28.5, -33.2, 0), V(28.5, -25.5, 0)), False)
sketch11.addGeometry(Part.LineSegment(V(28.5, -25.5, 0), V(20.8, -25.5, 0)), False)
sketch11.addGeometry(Part.Circle(V(25, -29, 0), V(0, 0, 1), 2.1), False)
sketch11.addGeometry(Part.ArcOfCircle(Part.Circle(V(-25, -35.5, 0), V(0, 0, 1), 4.2), math.radians(-90), math.radians(90)), False)
sketch11.addGeometry(Part.LineSegment(V(-25, -31.2, 0), V(-28.8, -31.2, 0)), False)
sketch11.addGeometry(Part.LineSegment(V(-28.8, -31.2, 0), V(-28.8, -39.8, 0)), False)
sketch11.addGeometry(Part.LineSegment(V(-28.8, -39.8, 0), V(-25, -39.8, 0)), False)
sketch11.addGeometry(Part.Circle(V(-25, -35.5, 0), V(0, 0, 1), 2.1), False)
sketch11.addGeometry(Part.ArcOfCircle(Part.Circle(V(-25, -78.7, 0), V(0, 0, 1), 4.2), math.radians(0), math.radians(90)), False)
sketch11.addGeometry(Part.LineSegment(V(-25, -74.5, 0), V(-28.8, -74.5, 0)), False)
sketch11.addGeometry(Part.LineSegment(V(-28.8, -74.5, 0), V(-28.8, -78.7, 0)), False)
sketch11.addGeometry(Part.ArcOfCircle(Part.Circle(V(-25, -78.7, 0), V(0, 0, 1), 3.8), math.radians(180), math.radians(270)), False)
sketch11.addGeometry(Part.LineSegment(V(-25, -82.5, 0), V(-20.8, -82.5, 0)), False)
sketch11.addGeometry(Part.LineSegment(V(-20.8, -82.5, 0), V(-20.8, -78.7, 0)), False)
sketch11.addGeometry(Part.Circle(V(-25, -78.7, 0), V(0, 0, 1), 2.1), False)
sketch11.addGeometry(Part.ArcOfCircle(Part.Circle(V(25, -78.7, 0), V(0, 0, 1), 4.2), math.radians(90), math.radians(180)), False)
sketch11.addGeometry(Part.LineSegment(V(20.8, -78.7, 0), V(20.8, -82.1, 0)), False)
sketch11.addGeometry(Part.LineSegment(V(20.8, -82.1, 0), V(25, -82.1, 0)), False)
sketch11.addGeometry(Part.ArcOfCircle(Part.Circle(V(25, -78.7, 0), V(0, 0, 1), 3.4), math.radians(-90), math.radians(0)), False)
sketch11.addGeometry(Part.LineSegment(V(28.4, -78.7, 0), V(28.4, -74.5, 0)), False)
sketch11.addGeometry(Part.LineSegment(V(28.4, -74.5, 0), V(25, -74.5, 0)), False)
sketch11.addGeometry(Part.Circle(V(25, -78.7, 0), V(0, 0, 1), 2.1), False)
sketch11.addConstraint(Sketcher.Constraint("Tangent", 0, 2, 1, 1))
sketch11.addConstraint(Sketcher.Constraint("Tangent", 1, 2, 2, 1))
sketch11.addConstraint(Sketcher.Constraint("Coincident", 2, 2, 3, 1))
sketch11.addConstraint(Sketcher.Constraint("Coincident", 3, 2, 4, 1))
sketch11.addConstraint(Sketcher.Constraint("Coincident", 4, 2, 0, 1))
sketch11.addConstraint(Sketcher.Constraint("Tangent", 6, 2, 7, 1))
sketch11.addConstraint(Sketcher.Constraint("Coincident", 7, 2, 8, 1))
sketch11.addConstraint(Sketcher.Constraint("Coincident", 8, 2, 9, 1))
sketch11.addConstraint(Sketcher.Constraint("Tangent", 9, 2, 6, 1))
sketch11.addConstraint(Sketcher.Constraint("Tangent", 11, 2, 12, 1))
sketch11.addConstraint(Sketcher.Constraint("Coincident", 12, 2, 13, 1))
sketch11.addConstraint(Sketcher.Constraint("Tangent", 13, 2, 14, 1))
sketch11.addConstraint(Sketcher.Constraint("Tangent", 14, 2, 15, 1))
sketch11.addConstraint(Sketcher.Constraint("Coincident", 15, 2, 16, 1))
sketch11.addConstraint(Sketcher.Constraint("Tangent", 16, 2, 11, 1))
sketch11.addConstraint(Sketcher.Constraint("Tangent", 18, 2, 19, 1))
sketch11.addConstraint(Sketcher.Constraint("Coincident", 19, 2, 20, 1))
sketch11.addConstraint(Sketcher.Constraint("Tangent", 20, 2, 21, 1))
sketch11.addConstraint(Sketcher.Constraint("Tangent", 21, 2, 22, 1))
sketch11.addConstraint(Sketcher.Constraint("Coincident", 22, 2, 23, 1))
sketch11.addConstraint(Sketcher.Constraint("Tangent", 23, 2, 18, 1))
sketch11.addConstraint(Sketcher.Constraint("Vertical", 0))
sketch11.addConstraint(Sketcher.Constraint("Horizontal", 2))
sketch11.addConstraint(Sketcher.Constraint("Vertical", 3))
sketch11.addConstraint(Sketcher.Constraint("Horizontal", 4))
sketch11.addConstraint(Sketcher.Constraint("Horizontal", 7))
sketch11.addConstraint(Sketcher.Constraint("Vertical", 8))
sketch11.addConstraint(Sketcher.Constraint("Horizontal", 9))
sketch11.addConstraint(Sketcher.Constraint("Horizontal", 12))
sketch11.addConstraint(Sketcher.Constraint("Vertical", 13))
sketch11.addConstraint(Sketcher.Constraint("Horizontal", 15))
sketch11.addConstraint(Sketcher.Constraint("Vertical", 16))
sketch11.addConstraint(Sketcher.Constraint("Vertical", 19))
sketch11.addConstraint(Sketcher.Constraint("Horizontal", 20))
sketch11.addConstraint(Sketcher.Constraint("Vertical", 22))
sketch11.addConstraint(Sketcher.Constraint("Horizontal", 23))
sketch11.addConstraint(Sketcher.Constraint("Coincident", 5, 3, 1, 3))
sketch11.addConstraint(Sketcher.Constraint("Coincident", 10, 3, 6, 3))
sketch11.addConstraint(Sketcher.Constraint("Coincident", 14, 3, 11, 3))
sketch11.addConstraint(Sketcher.Constraint("Coincident", 17, 3, 11, 3))
sketch11.addConstraint(Sketcher.Constraint("Coincident", 21, 3, 18, 3))
sketch11.addConstraint(Sketcher.Constraint("Coincident", 24, 3, 18, 3))
sketch11.addConstraint(Sketcher.Constraint("Equal", 1, 6))
sketch11.addConstraint(Sketcher.Constraint("Equal", 5, 10))
sketch11.addConstraint(Sketcher.Constraint("Equal", 6, 11))
sketch11.addConstraint(Sketcher.Constraint("Equal", 10, 17))
sketch11.addConstraint(Sketcher.Constraint("Equal", 11, 18))
sketch11.addConstraint(Sketcher.Constraint("Equal", 17, 24))
sketch11.addConstraint(Sketcher.Constraint("Symmetric", 11, 3, 18, 3, -2))
sketch11.addConstraint(Sketcher.Constraint("Vertical", 10, 3, 11, 3))
sketch11.addConstraint(Sketcher.Constraint("Vertical", 5, 3, 18, 3))
sketch11.addConstraint(Sketcher.Constraint("Equal", 2, 0))
sketch11.addConstraint(Sketcher.Constraint("Diameter", 5, Q("4.3 mm")))
sketch11.addConstraint(Sketcher.Constraint("Radius", 1, Q("4.25 mm")))
sketch11.addConstraint(Sketcher.Constraint("Radius", 14, Q("3.76 mm")))
sketch11.addConstraint(Sketcher.Constraint("Radius", 21, Q("3.41 mm")))
sketch11.addConstraint(Sketcher.Constraint("DistanceX", 2, 1, 2, 2, Q("3.5 mm")))
sketch11.addConstraint(Sketcher.Constraint("DistanceX", -1, 1, 1, 3, Q("25 mm")))
sketch11.addConstraint(Sketcher.Constraint("DistanceY", 1, 3, -1, 1, Q("29 mm")))
sketch11.addConstraint(Sketcher.Constraint("DistanceX", 7, 2, 7, 1, Q("3.78 mm")))
sketch11.addConstraint(Sketcher.Constraint("DistanceY", 6, 3, -1, 1, Q("35.5 mm")))
sketch11.addConstraint(Sketcher.Constraint("DistanceY", 11, 3, -1, 1, Q("78.7 mm")))
pad4 = body2.newObject("PartDesign::Pad", "Pad003")
pad4.Profile = sketch11
pad4.Length = 4

sketch12 = body2.newObject("Sketcher::SketchObject", "Sketch011")
sketch12.AttachmentSupport = (doc.getObject("XZ_Plane001"), [""])
sketch12.MapMode = "FlatFace"
sketch12.AttachmentOffset = App.Placement(V(0, 0, 24), App.Rotation())
add_polygon(sketch12, [(15, 12), (15, 0), (-15, 0), (-15, 12)])
sketch12.addConstraint(Sketcher.Constraint("Vertical", 0))
sketch12.addConstraint(Sketcher.Constraint("Horizontal", 1))
sketch12.addConstraint(Sketcher.Constraint("Vertical", 2))
sketch12.addConstraint(Sketcher.Constraint("Horizontal", 3))
sketch12.addConstraint(Sketcher.Constraint("Symmetric", 0, 2, 1, 2, -1, 1))
sketch12.addConstraint(Sketcher.Constraint("DistanceX", 1, 2, 1, 1, Q("30 mm")))
sketch12.addConstraint(Sketcher.Constraint("DistanceY", 0, 2, 0, 1, Q("12 mm")))
pocket8 = body2.newObject("PartDesign::Pocket", "Pocket007")
pocket8.Profile = sketch12
pocket8.Length = 2
pocket8.Reversed = True
doc.recompute()

fillet = body2.newObject("PartDesign::Fillet", "Fillet")
fillet.Base = (pocket8, edges_at(pocket8, [
    (0, -83.2, 30),
    (28.182, -81.882, 30),
    (29.5, -51.35, 30),
    (0, -24, 30),
    (-29.5, -51.35, 30),
    (-28.182, -81.882, 30),
    (29.5, -24, 15),
    (-29.5, -24, 15),
]))
fillet.Radius = 0.5

doc.recompute()
